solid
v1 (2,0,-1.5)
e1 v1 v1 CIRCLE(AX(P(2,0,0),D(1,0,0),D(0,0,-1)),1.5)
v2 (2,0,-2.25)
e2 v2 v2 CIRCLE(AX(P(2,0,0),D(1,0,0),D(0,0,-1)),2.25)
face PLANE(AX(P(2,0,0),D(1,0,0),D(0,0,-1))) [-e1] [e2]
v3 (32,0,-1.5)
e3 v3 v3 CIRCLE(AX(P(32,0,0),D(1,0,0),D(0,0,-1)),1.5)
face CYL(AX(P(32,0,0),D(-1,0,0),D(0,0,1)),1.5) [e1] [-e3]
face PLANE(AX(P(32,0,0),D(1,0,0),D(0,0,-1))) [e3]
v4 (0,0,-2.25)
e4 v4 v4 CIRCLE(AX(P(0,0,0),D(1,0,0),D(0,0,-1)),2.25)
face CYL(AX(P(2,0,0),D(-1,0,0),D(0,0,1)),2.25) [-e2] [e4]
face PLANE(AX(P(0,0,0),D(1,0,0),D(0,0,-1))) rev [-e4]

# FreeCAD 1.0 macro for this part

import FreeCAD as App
import Part
import Sketcher
from FreeCAD import Vector

doc = App.newDocument("Part")
body = doc.addObject("PartDesign::Body", "Body")

# Sketch on YZ plane
sketch1 = body.newObject("Sketcher::SketchObject", "Sketch")
sketch1.AttachmentSupport = (doc.getObject("YZ_Plane"), [""])
sketch1.MapMode = "FlatFace"
sketch1.addGeometry(Part.Circle(Vector(0, 0, 0), Vector(0, 0, 1), 2.2), False)
sketch1.addConstraint([
    Sketcher.Constraint("Coincident", 0, 3, -1, 1),
    Sketcher.Constraint("Diameter", 0, 4.5),
])
pad1 = body.newObject("PartDesign::Pad", "Pad")
pad1.Profile = sketch1
pad1.Length = 2

# Sketch on YZ plane
sketch2 = body.newObject("Sketcher::SketchObject", "Sketch001")
sketch2.AttachmentSupport = (doc.getObject("YZ_Plane"), [""])
sketch2.MapMode = "FlatFace"
sketch2.AttachmentOffset = App.Placement(Vector(0, 0, 2), App.Rotation())
sketch2.addGeometry(Part.Circle(Vector(0, 0, 0), Vector(0, 0, 1), 1.5), False)
sketch2.addConstraint([
    Sketcher.Constraint("Coincident", 0, 3, -1, 1),
    Sketcher.Constraint("Diameter", 0, 3.0),
])
pad2 = body.newObject("PartDesign::Pad", "Pad001")
pad2.Profile = sketch2
pad2.Length = 30

doc.recompute()
